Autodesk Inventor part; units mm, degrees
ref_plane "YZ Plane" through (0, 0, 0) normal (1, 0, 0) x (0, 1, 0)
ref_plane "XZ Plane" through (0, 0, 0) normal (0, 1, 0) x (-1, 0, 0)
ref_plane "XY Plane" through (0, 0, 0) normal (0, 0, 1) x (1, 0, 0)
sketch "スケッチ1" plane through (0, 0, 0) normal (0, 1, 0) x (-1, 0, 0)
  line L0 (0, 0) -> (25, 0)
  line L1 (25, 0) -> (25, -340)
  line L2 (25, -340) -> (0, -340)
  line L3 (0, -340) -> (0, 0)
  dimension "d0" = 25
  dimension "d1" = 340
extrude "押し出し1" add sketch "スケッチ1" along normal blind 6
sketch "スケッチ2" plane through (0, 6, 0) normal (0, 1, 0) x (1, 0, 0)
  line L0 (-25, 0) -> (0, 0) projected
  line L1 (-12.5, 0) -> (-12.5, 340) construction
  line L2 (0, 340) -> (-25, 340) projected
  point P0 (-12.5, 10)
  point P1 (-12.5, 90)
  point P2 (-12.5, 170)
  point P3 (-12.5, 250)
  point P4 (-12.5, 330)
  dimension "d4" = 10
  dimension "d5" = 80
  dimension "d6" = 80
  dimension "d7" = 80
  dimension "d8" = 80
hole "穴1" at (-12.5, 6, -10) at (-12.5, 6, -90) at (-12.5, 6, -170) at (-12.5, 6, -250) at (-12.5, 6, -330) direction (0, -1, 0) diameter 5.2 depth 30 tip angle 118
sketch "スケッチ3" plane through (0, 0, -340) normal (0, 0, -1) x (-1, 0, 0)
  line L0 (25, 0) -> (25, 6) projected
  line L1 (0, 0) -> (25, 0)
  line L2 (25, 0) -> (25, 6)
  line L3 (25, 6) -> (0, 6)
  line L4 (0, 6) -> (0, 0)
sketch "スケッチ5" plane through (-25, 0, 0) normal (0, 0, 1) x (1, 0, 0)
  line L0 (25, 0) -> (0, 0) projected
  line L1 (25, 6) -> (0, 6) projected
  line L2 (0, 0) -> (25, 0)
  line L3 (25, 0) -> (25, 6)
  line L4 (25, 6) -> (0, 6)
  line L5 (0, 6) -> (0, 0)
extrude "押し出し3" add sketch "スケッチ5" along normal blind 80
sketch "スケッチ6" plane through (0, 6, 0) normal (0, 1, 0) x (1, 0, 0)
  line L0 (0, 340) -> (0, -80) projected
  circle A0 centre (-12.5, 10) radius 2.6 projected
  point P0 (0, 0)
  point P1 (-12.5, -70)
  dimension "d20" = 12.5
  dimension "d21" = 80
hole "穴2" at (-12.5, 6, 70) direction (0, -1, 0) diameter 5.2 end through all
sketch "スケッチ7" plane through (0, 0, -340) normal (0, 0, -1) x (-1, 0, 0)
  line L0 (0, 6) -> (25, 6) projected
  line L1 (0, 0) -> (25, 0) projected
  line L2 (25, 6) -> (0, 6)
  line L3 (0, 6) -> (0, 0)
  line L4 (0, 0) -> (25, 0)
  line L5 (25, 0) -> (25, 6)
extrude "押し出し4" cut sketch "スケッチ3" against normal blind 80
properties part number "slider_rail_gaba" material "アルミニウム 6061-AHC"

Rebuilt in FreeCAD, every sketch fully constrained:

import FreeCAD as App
import Part
import Sketcher
from FreeCAD import Vector
Q = App.Units.Quantity

doc = App.newDocument("Part")
body = doc.addObject("PartDesign::Body", "Body")

# Sketch on XZ plane
sketch1 = body.newObject("Sketcher::SketchObject", "Sketch")
sketch1.AttachmentSupport = (doc.getObject("XZ_Plane"), [""])
sketch1.MapMode = "FlatFace"
sketch1.addGeometry([
    Part.LineSegment(Vector(-25, 0, 0), Vector(0, 0, 0)),
    Part.LineSegment(Vector(0, 0, 0), Vector(0, -340, 0)),
    Part.LineSegment(Vector(0, -340, 0), Vector(-25, -340, 0)),
    Part.LineSegment(Vector(-25, -340, 0), Vector(-25, 0, 0)),
], False)
sketch1.addConstraint([
    Sketcher.Constraint("Coincident", 0, 2, 1, 1),
    Sketcher.Constraint("Coincident", 1, 2, 2, 1),
    Sketcher.Constraint("Coincident", 2, 2, 3, 1),
    Sketcher.Constraint("Coincident", 3, 2, 0, 1),
    Sketcher.Constraint("Horizontal", 0),
    Sketcher.Constraint("Vertical", 1),
    Sketcher.Constraint("Horizontal", 2),
    Sketcher.Constraint("Vertical", 3),
    Sketcher.Constraint("Coincident", 0, 2, -1, 1),
    Sketcher.Constraint("DistanceX", 0, 1, 0, 2, Q("25 mm")),
    Sketcher.Constraint("DistanceY", 1, 2, 1, 1, Q("340 mm")),
])
pad1 = body.newObject("PartDesign::Pad", "Pad")
pad1.Profile = sketch1
pad1.Length = 6
pad1.Reversed = True

# Sketch on XZ plane
sketch2 = body.newObject("Sketcher::SketchObject", "Sketch001")
sketch2.AttachmentSupport = (doc.getObject("XZ_Plane"), [""])
sketch2.MapMode = "FlatFace"
sketch2.AttachmentOffset = App.Placement(Vector(0, 0, -6), App.Rotation())
sketch2.addGeometry([
    Part.Circle(Vector(-12.5, -10, 0), Vector(0, 0, 1), 2.6),  # 0
    Part.Circle(Vector(-12.5, -90, 0), Vector(0, 0, 1), 2.6),  # 1
    Part.Circle(Vector(-12.5, -170, 0), Vector(0, 0, 1), 2.6),  # 2
    Part.Circle(Vector(-12.5, -250, 0), Vector(0, 0, 1), 2.6),  # 3
    Part.Circle(Vector(-12.5, -330, 0), Vector(0, 0, 1), 2.6),  # 4
], False)
sketch2.addConstraint([
    Sketcher.Constraint("Equal", 0, 1),
    Sketcher.Constraint("Equal", 1, 2),
    Sketcher.Constraint("Equal", 2, 3),
    Sketcher.Constraint("Equal", 3, 4),
    Sketcher.Constraint("Vertical", 0, 3, 1, 3),
    Sketcher.Constraint("Vertical", 1, 3, 2, 3),
    Sketcher.Constraint("Vertical", 2, 3, 3, 3),
    Sketcher.Constraint("Vertical", 3, 3, 4, 3),
    Sketcher.Constraint("Diameter", 0, Q("5.2 mm")),
    Sketcher.Constraint("DistanceY", 0, 3, -1, 1, Q("10 mm")),
    Sketcher.Constraint("DistanceY", 1, 3, -1, 1, Q("90 mm")),
    Sketcher.Constraint("DistanceY", 2, 3, -1, 1, Q("170 mm")),
    Sketcher.Constraint("DistanceY", 3, 3, -1, 1, Q("250 mm")),
    Sketcher.Constraint("DistanceY", 4, 3, -1, 1, Q("330 mm")),
    Sketcher.Constraint("DistanceX", 0, 3, -1, 1, Q("12.5 mm")),
])
doc.recompute()
hole = body.newObject("PartDesign::Hole", "Hole")
hole.Profile = sketch2
hole.ThreadType = "None"
hole.Diameter = 5.2
hole.DepthType = "Dimension"
hole.Depth = 30
hole.DrillPoint = "Angled"
hole.DrillPointAngle = 118
hole.Reversed = True

# Sketch on XY plane
sketch3 = body.newObject("Sketcher::SketchObject", "Sketch002")
sketch3.AttachmentSupport = (doc.getObject("XY_Plane"), [""])
sketch3.MapMode = "FlatFace"
sketch3.addGeometry([
    Part.LineSegment(Vector(-25, 0, 0), Vector(0, 0, 0)),
    Part.LineSegment(Vector(0, 0, 0), Vector(0, 6, 0)),
    Part.LineSegment(Vector(0, 6, 0), Vector(-25, 6, 0)),
    Part.LineSegment(Vector(-25, 6, 0), Vector(-25, 0, 0)),
], False)
sketch3.addConstraint([
    Sketcher.Constraint("Coincident", 0, 2, 1, 1),
    Sketcher.Constraint("Coincident", 1, 2, 2, 1),
    Sketcher.Constraint("Coincident", 2, 2, 3, 1),
    Sketcher.Constraint("Coincident", 3, 2, 0, 1),
    Sketcher.Constraint("Horizontal", 0),
    Sketcher.Constraint("Vertical", 1),
    Sketcher.Constraint("Horizontal", 2),
    Sketcher.Constraint("Vertical", 3),
    Sketcher.Constraint("Coincident", 0, 2, -1, 1),
    Sketcher.Constraint("DistanceX", 0, 1, 0, 2, Q("25 mm")),
    Sketcher.Constraint("DistanceY", 1, 1, 1, 2, Q("6 mm")),
])
pad2 = body.newObject("PartDesign::Pad", "Pad001")
pad2.Profile = sketch3
pad2.Length = 80

# Sketch on XZ plane
sketch4 = body.newObject("Sketcher::SketchObject", "Sketch003")
sketch4.AttachmentSupport = (doc.getObject("XZ_Plane"), [""])
sketch4.MapMode = "FlatFace"
sketch4.AttachmentOffset = App.Placement(Vector(0, 0, -6), App.Rotation())
sketch4.addGeometry(Part.Circle(Vector(-12.5, 70, 0), Vector(0, 0, 1), 2.6), False)
sketch4.addConstraint([
    Sketcher.Constraint("Diameter", 0, Q("5.2 mm")),
    Sketcher.Constraint("DistanceY", -1, 1, 0, 3, Q("70 mm")),
    Sketcher.Constraint("DistanceX", 0, 3, -1, 1, Q("12.5 mm")),
])
doc.recompute()
hole2 = body.newObject("PartDesign::Hole", "Hole001")
hole2.Profile = sketch4
hole2.ThreadType = "None"
hole2.Diameter = 5.2
hole2.DepthType = "ThroughAll"
hole2.Reversed = True

# Sketch on XY plane
sketch5 = body.newObject("Sketcher::SketchObject", "Sketch004")
sketch5.AttachmentSupport = (doc.getObject("XY_Plane"), [""])
sketch5.MapMode = "FlatFace"
sketch5.AttachmentOffset = App.Placement(Vector(0, 0, -340), App.Rotation())
sketch5.addGeometry([
    Part.LineSegment(Vector(0, 0, 0), Vector(-25, 0, 0)),
    Part.LineSegment(Vector(-25, 0, 0), Vector(-25, 6, 0)),
    Part.LineSegment(Vector(-25, 6, 0), Vector(0, 6, 0)),
    Part.LineSegment(Vector(0, 6, 0), Vector(0, 0, 0)),
], False)
sketch5.addConstraint([
    Sketcher.Constraint("Coincident", 0, 2, 1, 1),
    Sketcher.Constraint("Coincident", 1, 2, 2, 1),
    Sketcher.Constraint("Coincident", 2, 2, 3, 1),
    Sketcher.Constraint("Coincident", 3, 2, 0, 1),
    Sketcher.Constraint("Horizontal", 0),
    Sketcher.Constraint("Vertical", 1),
    Sketcher.Constraint("Horizontal", 2),
    Sketcher.Constraint("Vertical", 3),
    Sketcher.Constraint("Coincident", 3, 2, -1, 1),
    Sketcher.Constraint("DistanceX", 0, 2, 0, 1, Q("25 mm")),
    Sketcher.Constraint("DistanceY", 1, 1, 1, 2, Q("6 mm")),
])
pocket1 = body.newObject("PartDesign::Pocket", "Pocket")
pocket1.Profile = sketch5
pocket1.Length = 80
pocket1.Reversed = True

doc.recompute()
